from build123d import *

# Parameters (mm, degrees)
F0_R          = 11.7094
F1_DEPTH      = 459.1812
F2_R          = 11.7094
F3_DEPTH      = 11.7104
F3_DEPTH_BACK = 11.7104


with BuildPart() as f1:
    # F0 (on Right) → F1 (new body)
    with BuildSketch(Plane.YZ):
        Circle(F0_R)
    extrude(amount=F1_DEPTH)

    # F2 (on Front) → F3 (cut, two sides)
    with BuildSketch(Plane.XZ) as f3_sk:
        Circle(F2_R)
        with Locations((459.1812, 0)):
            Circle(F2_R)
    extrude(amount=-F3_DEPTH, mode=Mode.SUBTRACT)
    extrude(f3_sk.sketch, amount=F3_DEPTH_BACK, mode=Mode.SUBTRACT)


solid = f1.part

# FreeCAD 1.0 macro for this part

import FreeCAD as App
import Part
import Sketcher
Q = App.Units.Quantity

doc = App.newDocument("Part")
body = doc.addObject("PartDesign::Body", "Body")

# Sketch on YZ plane
sketch1 = doc.addObject("Sketcher::SketchObject", "Sketch")
body.addObject(sketch1)
sketch1.AttachmentSupport = (doc.YZ_Plane, [""])
sketch1.MapMode = "FlatFace"
sketch1.addGeometry(Part.Circle(App.Vector(0, 0, 0), App.Vector(0, 0, 1), 12), False)
sketch1.addConstraint([
    Sketcher.Constraint("Coincident", 0, 3, -1, 1),
    Sketcher.Constraint("Diameter", 0, Q("0.922 in")),
])
pad1 = doc.addObject("PartDesign::Pad", "Pad")
body.addObject(pad1)
pad1.Profile = sketch1
pad1.Length = Q("18.078 in")

# Sketch on XZ plane
sketch2 = doc.addObject("Sketcher::SketchObject", "Sketch001")
body.addObject(sketch2)
sketch2.AttachmentSupport = (doc.XZ_Plane, [""])
sketch2.MapMode = "FlatFace"
sketch2.addGeometry([
    Part.Circle(App.Vector(0, 0, 0), App.Vector(0, 0, 1), 12),
    Part.Circle(App.Vector(459, 0, 0), App.Vector(0, 0, 1), 12),
], False)
sketch2.addConstraint([
    Sketcher.Constraint("Coincident", 0, 3, -1, 1),
    Sketcher.Constraint("Equal", 0, 1),
    Sketcher.Constraint("PointOnObject", 1, 3, -1),
    Sketcher.Constraint("Diameter", 0, Q("0.922 in")),
    Sketcher.Constraint("DistanceX", -1, 1, 1, 3, Q("18.078 in")),
])
pocket1 = doc.addObject("PartDesign::Pocket", "Pocket")
body.addObject(pocket1)
pocket1.Profile = sketch2
pocket1.Type = "ThroughAll"
pocket1.Midplane = True

doc.recompute()
